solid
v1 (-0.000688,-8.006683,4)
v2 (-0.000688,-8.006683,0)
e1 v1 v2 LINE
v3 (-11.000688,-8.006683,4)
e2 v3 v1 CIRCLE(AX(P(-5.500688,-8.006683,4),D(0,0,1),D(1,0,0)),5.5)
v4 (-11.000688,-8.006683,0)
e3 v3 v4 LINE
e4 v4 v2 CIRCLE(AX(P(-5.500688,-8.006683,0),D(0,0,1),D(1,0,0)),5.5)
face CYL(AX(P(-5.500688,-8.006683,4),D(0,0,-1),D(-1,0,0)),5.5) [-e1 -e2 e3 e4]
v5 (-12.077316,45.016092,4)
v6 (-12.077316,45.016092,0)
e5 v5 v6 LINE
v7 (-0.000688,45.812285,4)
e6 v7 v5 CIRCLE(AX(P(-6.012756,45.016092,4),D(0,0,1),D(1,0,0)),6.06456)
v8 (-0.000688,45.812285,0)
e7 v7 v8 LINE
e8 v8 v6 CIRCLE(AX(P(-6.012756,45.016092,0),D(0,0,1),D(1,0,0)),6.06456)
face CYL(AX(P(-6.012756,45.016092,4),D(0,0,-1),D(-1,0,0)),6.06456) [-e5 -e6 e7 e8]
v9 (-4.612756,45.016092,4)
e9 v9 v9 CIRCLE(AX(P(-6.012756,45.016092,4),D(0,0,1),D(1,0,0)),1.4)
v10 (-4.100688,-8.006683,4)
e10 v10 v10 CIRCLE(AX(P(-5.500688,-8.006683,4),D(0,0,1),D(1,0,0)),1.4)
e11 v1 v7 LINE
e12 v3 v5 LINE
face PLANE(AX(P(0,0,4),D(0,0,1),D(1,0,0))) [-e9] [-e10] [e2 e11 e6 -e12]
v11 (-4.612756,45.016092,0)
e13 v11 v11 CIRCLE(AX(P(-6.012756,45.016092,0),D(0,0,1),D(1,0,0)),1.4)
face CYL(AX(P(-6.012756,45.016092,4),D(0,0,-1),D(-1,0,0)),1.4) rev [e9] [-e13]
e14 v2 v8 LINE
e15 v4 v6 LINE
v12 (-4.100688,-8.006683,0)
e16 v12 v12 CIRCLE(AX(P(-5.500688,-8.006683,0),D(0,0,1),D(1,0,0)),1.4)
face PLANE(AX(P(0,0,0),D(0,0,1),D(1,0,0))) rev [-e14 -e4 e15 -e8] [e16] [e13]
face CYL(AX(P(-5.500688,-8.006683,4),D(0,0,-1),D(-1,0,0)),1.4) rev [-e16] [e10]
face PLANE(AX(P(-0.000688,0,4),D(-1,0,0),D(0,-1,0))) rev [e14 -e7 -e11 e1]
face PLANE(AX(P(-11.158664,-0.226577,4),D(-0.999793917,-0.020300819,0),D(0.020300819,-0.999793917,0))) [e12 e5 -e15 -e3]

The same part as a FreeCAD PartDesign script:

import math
import FreeCAD as App
import Part
import Sketcher
from FreeCAD import Vector

doc = App.newDocument("Part")
body = doc.addObject("PartDesign::Body", "Body")

sketch1 = body.newObject("Sketcher::SketchObject", "Sketch")
sketch1.AttachmentSupport = (doc.getObject("XY_Plane"), [""])
sketch1.MapMode = "FlatFace"
sketch1.addGeometry([
    Part.ArcOfCircle(Part.Circle(Vector(-5.500688, -8.006683, 0), Vector(0, 0, 1), 5.5), math.radians(180), math.radians(360)),
    Part.LineSegment(Vector(-0.000688, -8.006683, 0), Vector(-0.000688, 45.812285, 0)),
    Part.ArcOfCircle(Part.Circle(Vector(-6.012756, 45.016092, 0), Vector(0, 0, 1), 6.06456), math.radians(7.54393), math.radians(180)),
    Part.LineSegment(Vector(-12.077316, 45.016092, 0), Vector(-12.072317, 44.769911, 0)),
    Part.LineSegment(Vector(-12.072317, 44.769911, 0), Vector(-11.000688, -8.006683, 0)),
    Part.Circle(Vector(-5.500688, -8.006683, 0), Vector(0, 0, 1), 1.4),
    Part.Circle(Vector(-6.012756, 45.016092, 0), Vector(0, 0, 1), 1.4),
], False)
sketch1.addConstraint([
    Sketcher.Constraint("Coincident", 0, 2, 1, 1),
    Sketcher.Constraint("Coincident", 1, 2, 2, 1),
    Sketcher.Constraint("Coincident", 2, 2, 3, 1),
    Sketcher.Constraint("Coincident", 3, 2, 4, 1),
    Sketcher.Constraint("Coincident", 4, 2, 0, 1),
    Sketcher.Constraint("Vertical", 1),
    Sketcher.Constraint("Coincident", 5, 3, 0, 3),
    Sketcher.Constraint("Coincident", 6, 3, 2, 3),
    Sketcher.Constraint("Diameter", 5, 2.8),
    Sketcher.Constraint("Diameter", 6, 2.8),
    Sketcher.Constraint("Radius", 0, 5.5),
    Sketcher.Constraint("Radius", 2, 6.06456),
    Sketcher.Constraint("DistanceX", 2, 2, 3, 2, 0.004999),
    Sketcher.Constraint("DistanceY", 1, 1, 1, 2, 53.818968),
    Sketcher.Constraint("Distance", 3, 0.246231),
    Sketcher.Constraint("DistanceX", 0, 3, -1, 1, 5.500688),
    Sketcher.Constraint("DistanceY", -1, 1, 2, 3, 45.016092),
    Sketcher.Constraint("DistanceY", -1, 1, 2, 2, 45.016092),
    Sketcher.Constraint("DistanceY", 0, 3, 1, 2, 53.818968),
    Sketcher.Constraint("DistanceX", 3, 2, 1, 2, 12.071629),
    Sketcher.Constraint("Distance", 4, 52.787473),
])
pad1 = body.newObject("PartDesign::Pad", "Pad")
pad1.Profile = sketch1
pad1.Length = 4

doc.recompute()
